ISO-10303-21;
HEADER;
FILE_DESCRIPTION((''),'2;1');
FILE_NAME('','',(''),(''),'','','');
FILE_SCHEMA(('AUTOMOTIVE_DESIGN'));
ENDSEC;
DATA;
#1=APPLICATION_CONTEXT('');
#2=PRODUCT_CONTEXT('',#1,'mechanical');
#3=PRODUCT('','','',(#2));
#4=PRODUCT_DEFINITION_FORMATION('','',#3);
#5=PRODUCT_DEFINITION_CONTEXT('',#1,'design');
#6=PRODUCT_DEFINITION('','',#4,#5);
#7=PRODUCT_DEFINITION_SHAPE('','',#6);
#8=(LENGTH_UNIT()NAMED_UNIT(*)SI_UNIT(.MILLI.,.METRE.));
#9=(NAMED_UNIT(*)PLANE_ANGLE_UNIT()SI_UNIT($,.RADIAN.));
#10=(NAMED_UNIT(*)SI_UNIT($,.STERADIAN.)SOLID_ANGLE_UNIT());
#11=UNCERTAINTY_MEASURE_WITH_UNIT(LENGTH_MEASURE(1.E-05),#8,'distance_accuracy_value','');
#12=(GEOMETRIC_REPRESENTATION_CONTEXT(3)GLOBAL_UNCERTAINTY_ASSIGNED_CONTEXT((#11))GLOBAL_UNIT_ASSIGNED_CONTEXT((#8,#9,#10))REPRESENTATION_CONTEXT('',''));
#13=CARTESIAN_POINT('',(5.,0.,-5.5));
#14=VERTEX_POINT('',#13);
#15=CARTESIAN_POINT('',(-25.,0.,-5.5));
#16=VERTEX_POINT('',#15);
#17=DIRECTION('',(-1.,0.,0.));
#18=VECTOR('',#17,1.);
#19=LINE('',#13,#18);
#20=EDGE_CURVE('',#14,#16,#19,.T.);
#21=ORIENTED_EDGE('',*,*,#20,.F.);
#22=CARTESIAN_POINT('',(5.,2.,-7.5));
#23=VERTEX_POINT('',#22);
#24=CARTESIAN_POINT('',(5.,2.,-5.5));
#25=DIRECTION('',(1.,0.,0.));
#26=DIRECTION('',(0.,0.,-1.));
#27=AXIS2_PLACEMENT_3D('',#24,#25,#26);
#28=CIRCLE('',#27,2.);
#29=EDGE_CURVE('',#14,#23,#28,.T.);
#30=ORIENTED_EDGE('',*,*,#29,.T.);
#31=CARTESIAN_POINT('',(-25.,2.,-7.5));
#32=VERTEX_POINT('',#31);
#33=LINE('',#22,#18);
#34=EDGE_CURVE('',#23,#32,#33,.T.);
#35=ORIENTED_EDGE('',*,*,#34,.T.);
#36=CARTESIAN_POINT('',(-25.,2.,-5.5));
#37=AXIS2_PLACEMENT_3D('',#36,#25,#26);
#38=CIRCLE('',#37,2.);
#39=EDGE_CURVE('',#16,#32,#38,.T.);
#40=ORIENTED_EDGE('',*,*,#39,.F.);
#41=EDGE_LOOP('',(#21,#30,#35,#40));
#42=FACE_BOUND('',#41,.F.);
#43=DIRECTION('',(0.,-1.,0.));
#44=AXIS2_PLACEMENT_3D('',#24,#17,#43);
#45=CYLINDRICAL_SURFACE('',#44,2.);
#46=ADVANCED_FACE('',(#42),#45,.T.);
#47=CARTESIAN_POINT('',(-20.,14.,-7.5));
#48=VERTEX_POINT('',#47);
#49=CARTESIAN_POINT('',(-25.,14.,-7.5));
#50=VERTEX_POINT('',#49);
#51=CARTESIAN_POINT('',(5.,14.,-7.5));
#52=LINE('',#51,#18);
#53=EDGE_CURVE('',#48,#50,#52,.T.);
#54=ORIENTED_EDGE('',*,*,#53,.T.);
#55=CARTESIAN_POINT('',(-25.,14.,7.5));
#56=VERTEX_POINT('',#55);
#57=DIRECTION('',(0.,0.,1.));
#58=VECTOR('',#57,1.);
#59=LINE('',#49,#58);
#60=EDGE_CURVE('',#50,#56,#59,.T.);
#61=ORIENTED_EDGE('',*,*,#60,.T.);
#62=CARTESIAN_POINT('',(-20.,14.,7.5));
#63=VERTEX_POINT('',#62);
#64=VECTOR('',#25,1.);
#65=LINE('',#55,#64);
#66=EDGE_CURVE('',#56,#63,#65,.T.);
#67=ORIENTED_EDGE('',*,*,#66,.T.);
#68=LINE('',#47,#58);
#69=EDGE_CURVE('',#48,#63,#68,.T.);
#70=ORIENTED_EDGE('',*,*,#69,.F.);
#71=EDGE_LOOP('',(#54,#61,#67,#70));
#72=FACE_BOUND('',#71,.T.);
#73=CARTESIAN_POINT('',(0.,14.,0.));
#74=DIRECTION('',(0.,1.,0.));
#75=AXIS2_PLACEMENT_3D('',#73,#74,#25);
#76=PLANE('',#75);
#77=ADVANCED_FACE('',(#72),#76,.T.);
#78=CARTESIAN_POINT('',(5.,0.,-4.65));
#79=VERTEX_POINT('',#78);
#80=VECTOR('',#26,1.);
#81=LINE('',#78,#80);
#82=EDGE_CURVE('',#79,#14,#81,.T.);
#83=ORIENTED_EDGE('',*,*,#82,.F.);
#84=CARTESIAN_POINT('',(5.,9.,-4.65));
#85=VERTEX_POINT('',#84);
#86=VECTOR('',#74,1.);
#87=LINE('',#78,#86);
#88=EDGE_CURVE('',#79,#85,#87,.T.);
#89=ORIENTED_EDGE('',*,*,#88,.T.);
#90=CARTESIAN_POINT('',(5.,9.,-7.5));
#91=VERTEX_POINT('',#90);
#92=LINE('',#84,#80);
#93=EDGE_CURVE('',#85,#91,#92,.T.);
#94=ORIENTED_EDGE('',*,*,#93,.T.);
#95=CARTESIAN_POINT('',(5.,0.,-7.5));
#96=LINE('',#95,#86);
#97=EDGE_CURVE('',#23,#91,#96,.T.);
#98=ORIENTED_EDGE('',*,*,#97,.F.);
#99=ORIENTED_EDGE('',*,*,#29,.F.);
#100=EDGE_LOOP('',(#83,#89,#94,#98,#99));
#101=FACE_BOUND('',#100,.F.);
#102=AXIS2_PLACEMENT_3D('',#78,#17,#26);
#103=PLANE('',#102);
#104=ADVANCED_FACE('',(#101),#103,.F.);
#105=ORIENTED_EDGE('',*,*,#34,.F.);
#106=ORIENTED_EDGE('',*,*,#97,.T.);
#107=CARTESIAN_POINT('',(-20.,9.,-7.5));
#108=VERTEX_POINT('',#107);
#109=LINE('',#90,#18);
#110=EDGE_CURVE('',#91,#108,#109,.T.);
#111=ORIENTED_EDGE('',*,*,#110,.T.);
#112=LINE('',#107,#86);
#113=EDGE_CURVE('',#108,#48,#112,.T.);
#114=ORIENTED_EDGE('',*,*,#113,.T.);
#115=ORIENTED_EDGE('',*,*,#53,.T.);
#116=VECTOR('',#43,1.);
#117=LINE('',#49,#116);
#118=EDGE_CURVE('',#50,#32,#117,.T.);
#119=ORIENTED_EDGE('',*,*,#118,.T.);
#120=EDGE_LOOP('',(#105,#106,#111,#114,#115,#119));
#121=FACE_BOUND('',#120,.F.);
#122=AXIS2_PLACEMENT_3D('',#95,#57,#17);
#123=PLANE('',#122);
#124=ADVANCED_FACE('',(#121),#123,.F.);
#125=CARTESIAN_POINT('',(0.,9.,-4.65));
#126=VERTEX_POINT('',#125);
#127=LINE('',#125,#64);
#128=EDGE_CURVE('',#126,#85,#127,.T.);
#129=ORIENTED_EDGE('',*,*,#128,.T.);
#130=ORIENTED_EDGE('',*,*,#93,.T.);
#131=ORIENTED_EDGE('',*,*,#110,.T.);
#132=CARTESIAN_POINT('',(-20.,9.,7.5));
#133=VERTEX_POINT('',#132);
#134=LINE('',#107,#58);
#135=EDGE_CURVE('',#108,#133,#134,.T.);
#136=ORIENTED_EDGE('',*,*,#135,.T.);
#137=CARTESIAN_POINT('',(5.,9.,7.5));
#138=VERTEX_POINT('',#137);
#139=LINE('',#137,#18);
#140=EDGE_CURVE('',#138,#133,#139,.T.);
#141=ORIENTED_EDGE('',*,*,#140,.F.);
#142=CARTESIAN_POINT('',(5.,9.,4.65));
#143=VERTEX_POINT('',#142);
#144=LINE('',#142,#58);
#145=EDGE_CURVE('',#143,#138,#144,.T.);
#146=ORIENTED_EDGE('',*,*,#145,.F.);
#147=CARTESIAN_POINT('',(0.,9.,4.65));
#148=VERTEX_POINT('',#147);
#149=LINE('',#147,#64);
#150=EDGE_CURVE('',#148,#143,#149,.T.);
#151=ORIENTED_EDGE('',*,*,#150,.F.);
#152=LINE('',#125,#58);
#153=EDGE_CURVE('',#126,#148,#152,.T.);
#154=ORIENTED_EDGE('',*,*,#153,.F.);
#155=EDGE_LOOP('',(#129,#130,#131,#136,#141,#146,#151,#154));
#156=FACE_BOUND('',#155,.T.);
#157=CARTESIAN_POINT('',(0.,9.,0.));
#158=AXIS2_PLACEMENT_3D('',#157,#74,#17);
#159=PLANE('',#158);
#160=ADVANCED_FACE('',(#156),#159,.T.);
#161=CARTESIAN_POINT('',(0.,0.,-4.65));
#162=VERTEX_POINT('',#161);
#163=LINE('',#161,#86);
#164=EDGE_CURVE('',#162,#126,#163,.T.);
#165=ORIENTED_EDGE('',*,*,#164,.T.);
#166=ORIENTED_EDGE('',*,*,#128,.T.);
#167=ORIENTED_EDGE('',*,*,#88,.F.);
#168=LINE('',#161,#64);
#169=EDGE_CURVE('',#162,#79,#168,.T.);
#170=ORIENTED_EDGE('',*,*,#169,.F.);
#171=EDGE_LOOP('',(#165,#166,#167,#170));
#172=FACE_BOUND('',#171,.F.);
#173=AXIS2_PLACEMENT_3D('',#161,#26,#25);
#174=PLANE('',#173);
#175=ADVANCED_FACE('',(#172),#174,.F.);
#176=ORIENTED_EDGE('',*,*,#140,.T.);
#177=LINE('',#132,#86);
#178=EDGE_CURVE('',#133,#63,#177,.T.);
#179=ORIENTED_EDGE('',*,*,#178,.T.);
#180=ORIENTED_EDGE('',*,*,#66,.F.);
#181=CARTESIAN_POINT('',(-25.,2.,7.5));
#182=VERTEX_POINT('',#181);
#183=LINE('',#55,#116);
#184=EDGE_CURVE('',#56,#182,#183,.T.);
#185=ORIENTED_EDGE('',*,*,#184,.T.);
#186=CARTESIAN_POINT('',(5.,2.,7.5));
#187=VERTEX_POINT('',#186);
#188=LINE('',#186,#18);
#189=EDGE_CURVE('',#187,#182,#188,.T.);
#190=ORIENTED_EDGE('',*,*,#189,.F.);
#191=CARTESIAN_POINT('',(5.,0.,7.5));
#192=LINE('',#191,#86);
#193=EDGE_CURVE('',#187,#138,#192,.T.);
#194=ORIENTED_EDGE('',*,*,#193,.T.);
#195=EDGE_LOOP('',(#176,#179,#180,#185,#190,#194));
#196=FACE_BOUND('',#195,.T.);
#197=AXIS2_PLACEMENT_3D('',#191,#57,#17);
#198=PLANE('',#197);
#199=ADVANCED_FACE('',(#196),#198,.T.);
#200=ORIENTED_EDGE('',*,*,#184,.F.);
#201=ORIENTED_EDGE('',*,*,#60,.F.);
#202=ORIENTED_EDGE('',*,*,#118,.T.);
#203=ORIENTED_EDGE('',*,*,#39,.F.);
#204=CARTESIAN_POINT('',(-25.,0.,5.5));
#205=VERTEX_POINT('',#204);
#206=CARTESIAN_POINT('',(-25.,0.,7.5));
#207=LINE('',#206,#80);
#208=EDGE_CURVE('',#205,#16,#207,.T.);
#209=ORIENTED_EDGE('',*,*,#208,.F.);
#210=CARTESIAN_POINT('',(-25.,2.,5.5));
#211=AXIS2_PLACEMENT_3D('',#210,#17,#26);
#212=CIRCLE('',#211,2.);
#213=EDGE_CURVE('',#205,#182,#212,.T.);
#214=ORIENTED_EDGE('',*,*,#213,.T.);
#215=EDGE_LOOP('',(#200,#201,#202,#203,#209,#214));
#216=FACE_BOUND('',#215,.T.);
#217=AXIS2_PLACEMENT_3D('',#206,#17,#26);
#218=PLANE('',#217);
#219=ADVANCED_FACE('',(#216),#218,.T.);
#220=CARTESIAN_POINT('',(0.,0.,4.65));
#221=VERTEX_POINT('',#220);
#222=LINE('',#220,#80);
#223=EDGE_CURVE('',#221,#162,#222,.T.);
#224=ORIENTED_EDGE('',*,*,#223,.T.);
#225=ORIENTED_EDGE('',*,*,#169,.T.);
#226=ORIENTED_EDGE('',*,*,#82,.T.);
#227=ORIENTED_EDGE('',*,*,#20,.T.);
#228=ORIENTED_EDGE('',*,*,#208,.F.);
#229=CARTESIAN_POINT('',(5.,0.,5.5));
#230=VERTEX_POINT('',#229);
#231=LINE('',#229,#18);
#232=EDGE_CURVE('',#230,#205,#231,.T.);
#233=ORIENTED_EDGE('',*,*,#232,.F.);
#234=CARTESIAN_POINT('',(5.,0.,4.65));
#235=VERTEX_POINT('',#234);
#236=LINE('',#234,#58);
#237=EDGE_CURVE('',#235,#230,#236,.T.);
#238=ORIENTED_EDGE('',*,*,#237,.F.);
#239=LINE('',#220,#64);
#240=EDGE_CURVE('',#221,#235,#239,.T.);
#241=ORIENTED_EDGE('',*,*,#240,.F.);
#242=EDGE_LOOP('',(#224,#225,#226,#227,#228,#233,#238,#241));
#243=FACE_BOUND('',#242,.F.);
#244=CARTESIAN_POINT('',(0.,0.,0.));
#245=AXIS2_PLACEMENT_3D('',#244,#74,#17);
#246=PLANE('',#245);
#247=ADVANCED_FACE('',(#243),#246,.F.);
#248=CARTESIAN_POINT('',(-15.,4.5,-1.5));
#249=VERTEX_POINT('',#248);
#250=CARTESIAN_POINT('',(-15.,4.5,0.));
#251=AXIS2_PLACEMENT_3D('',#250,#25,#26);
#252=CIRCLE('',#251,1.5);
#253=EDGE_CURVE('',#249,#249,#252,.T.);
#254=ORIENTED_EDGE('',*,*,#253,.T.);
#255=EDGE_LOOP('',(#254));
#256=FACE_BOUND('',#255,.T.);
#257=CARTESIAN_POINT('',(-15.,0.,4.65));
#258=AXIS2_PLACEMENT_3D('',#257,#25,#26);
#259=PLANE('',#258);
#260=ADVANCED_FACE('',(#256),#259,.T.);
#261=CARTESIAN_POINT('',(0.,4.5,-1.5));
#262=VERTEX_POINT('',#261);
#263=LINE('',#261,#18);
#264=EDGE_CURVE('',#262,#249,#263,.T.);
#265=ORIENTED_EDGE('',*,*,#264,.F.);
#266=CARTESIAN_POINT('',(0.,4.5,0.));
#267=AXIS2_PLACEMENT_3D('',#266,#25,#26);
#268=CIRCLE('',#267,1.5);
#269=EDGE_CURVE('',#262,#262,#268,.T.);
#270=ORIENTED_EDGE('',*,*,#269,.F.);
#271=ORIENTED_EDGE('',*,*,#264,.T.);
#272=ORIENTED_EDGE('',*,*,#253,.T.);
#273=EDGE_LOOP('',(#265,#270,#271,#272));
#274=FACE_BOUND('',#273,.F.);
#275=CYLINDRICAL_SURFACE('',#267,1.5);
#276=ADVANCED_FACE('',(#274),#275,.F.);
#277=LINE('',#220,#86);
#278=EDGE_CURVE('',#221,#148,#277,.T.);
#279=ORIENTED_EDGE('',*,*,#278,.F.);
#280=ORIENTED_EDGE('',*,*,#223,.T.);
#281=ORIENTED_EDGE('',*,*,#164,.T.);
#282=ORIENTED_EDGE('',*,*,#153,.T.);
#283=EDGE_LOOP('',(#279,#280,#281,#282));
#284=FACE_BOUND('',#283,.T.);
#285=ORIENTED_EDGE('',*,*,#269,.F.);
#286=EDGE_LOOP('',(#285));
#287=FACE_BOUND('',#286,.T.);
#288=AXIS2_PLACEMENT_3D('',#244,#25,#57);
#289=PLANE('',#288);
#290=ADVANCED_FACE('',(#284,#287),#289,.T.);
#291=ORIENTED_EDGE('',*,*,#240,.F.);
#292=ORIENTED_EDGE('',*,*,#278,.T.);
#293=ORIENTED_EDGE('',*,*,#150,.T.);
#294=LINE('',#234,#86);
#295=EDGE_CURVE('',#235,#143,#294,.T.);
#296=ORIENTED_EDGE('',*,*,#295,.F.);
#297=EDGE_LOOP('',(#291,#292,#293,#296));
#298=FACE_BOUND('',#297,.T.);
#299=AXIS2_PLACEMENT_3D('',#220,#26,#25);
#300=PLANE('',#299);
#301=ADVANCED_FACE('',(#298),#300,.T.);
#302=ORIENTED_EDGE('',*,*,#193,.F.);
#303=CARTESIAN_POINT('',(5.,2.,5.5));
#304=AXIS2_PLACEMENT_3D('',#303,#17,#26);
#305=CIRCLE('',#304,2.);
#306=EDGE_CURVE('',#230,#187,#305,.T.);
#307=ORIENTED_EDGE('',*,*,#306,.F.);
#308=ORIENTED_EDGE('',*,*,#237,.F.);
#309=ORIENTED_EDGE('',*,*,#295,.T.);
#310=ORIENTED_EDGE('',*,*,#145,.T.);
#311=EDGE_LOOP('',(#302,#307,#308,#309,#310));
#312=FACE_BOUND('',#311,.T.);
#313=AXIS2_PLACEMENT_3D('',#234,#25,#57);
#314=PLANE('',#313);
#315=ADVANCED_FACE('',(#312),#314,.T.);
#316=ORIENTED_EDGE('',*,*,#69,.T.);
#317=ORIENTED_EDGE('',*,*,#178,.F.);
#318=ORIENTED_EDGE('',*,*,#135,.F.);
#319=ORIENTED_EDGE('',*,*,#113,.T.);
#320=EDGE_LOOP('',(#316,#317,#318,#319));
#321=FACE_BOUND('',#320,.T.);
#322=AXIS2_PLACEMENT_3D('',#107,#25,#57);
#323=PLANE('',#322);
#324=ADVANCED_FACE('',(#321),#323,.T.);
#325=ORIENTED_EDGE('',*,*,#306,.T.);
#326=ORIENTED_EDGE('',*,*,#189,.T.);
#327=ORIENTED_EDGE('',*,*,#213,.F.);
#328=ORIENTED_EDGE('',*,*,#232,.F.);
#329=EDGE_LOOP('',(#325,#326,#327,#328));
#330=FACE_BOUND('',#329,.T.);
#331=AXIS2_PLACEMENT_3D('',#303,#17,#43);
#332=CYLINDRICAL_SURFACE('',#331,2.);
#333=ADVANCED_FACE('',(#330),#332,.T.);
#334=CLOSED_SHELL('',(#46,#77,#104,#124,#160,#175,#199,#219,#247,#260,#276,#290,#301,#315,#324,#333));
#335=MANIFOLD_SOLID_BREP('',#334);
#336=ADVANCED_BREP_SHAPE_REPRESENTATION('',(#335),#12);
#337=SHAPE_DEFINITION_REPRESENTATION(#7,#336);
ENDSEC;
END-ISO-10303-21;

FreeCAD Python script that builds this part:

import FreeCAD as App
import Part
import Sketcher
Q = App.Units.Quantity


def edges_at(feature, points):
    """Names of the edges that pass closest to the given points."""
    edges = feature.Shape.Edges
    near = lambda p: min(range(len(edges)), key=lambda i: edges[i].distToShape(Part.Vertex(*p))[0])
    return sorted({f"Edge{near(p) + 1}" for p in points})

doc = App.newDocument("Part")
body = doc.addObject("PartDesign::Body", "Body")

# Sketch on XZ plane
sketch1 = body.newObject("Sketcher::SketchObject", "Sketch")
sketch1.AttachmentSupport = (doc.getObject("XZ_Plane"), [""])
sketch1.MapMode = "FlatFace"
sketch1.addGeometry([
    Part.LineSegment(App.Vector(0, 4.7, 0), App.Vector(0, -4.7, 0)),  # 0
    Part.LineSegment(App.Vector(0, -4.7, 0), App.Vector(5, -4.7, 0)),  # 1
    Part.LineSegment(App.Vector(5, -4.7, 0), App.Vector(5, -7.5, 0)),  # 2
    Part.LineSegment(App.Vector(5, -7.5, 0), App.Vector(-25, -7.5, 0)),  # 3
    Part.LineSegment(App.Vector(-25, -7.5, 0), App.Vector(-25, 7.5, 0)),  # 4
    Part.LineSegment(App.Vector(-25, 7.5, 0), App.Vector(5, 7.5, 0)),  # 5
    Part.LineSegment(App.Vector(5, 7.5, 0), App.Vector(5, 4.7, 0)),  # 6
    Part.LineSegment(App.Vector(5, 4.7, 0), App.Vector(0, 4.7, 0)),  # 7
], False)
sketch1.addConstraint([
    Sketcher.Constraint("Coincident", 0, 2, 1, 1),
    Sketcher.Constraint("Coincident", 1, 2, 2, 1),
    Sketcher.Constraint("Coincident", 2, 2, 3, 1),
    Sketcher.Constraint("Coincident", 3, 2, 4, 1),
    Sketcher.Constraint("Coincident", 4, 2, 5, 1),
    Sketcher.Constraint("Coincident", 5, 2, 6, 1),
    Sketcher.Constraint("Coincident", 6, 2, 7, 1),
    Sketcher.Constraint("Coincident", 7, 2, 0, 1),
    Sketcher.Constraint("Vertical", 0),
    Sketcher.Constraint("Horizontal", 1),
    Sketcher.Constraint("Vertical", 2),
    Sketcher.Constraint("Horizontal", 3),
    Sketcher.Constraint("Vertical", 4),
    Sketcher.Constraint("Horizontal", 5),
    Sketcher.Constraint("Vertical", 6),
    Sketcher.Constraint("Horizontal", 7),
    Sketcher.Constraint("Symmetric", 0, 2, 7, 2, -1, 1),
    Sketcher.Constraint("Symmetric", 2, 2, 5, 2, -1),
    Sketcher.Constraint("DistanceX", 1, 1, 1, 2, Q("5 mm")),
    Sketcher.Constraint("DistanceY", 4, 1, 4, 2, Q("15 mm")),
    Sketcher.Constraint("DistanceY", 0, 2, 0, 1, Q("9.3 mm")),
    Sketcher.Constraint("DistanceX", 3, 2, -1, 1, Q("25 mm")),
])
pad1 = body.newObject("PartDesign::Pad", "Pad")
pad1.Profile = sketch1
pad1.Length = 9
pad1.Reversed = True

# Sketch on XZ plane
sketch2 = body.newObject("Sketcher::SketchObject", "Sketch001")
sketch2.AttachmentSupport = (doc.getObject("XZ_Plane"), [""])
sketch2.MapMode = "FlatFace"
sketch2.AttachmentOffset = App.Placement(App.Vector(0, 0, -9), App.Rotation())
sketch2.addGeometry([
    Part.LineSegment(App.Vector(-20, 8, 0), App.Vector(-20, -8, 0)),
    Part.LineSegment(App.Vector(-20, -8, 0), App.Vector(-25, -8, 0)),
    Part.LineSegment(App.Vector(-25, -8, 0), App.Vector(-25, 8, 0)),
    Part.LineSegment(App.Vector(-25, 8, 0), App.Vector(-20, 8, 0)),
], False)
sketch2.addConstraint([
    Sketcher.Constraint("Coincident", 0, 2, 1, 1),
    Sketcher.Constraint("Coincident", 1, 2, 2, 1),
    Sketcher.Constraint("Coincident", 2, 2, 3, 1),
    Sketcher.Constraint("Coincident", 3, 2, 0, 1),
    Sketcher.Constraint("Vertical", 0),
    Sketcher.Constraint("Horizontal", 1),
    Sketcher.Constraint("Vertical", 2),
    Sketcher.Constraint("Horizontal", 3),
    Sketcher.Constraint("DistanceX", 1, 2, 1, 1, Q("5 mm")),
    Sketcher.Constraint("DistanceY", 0, 2, 0, 1, Q("15 mm")),
    Sketcher.Constraint("DistanceX", 0, 2, -1, 1, Q("20 mm")),
    Sketcher.Constraint("DistanceY", 0, 2, -1, 1, Q("7.5 mm")),
])
pad2 = body.newObject("PartDesign::Pad", "Pad001")
pad2.Profile = sketch2
pad2.Length = 5
pad2.Reversed = True

# Sketch on YZ plane
sketch3 = body.newObject("Sketcher::SketchObject", "Sketch002")
sketch3.AttachmentSupport = (doc.getObject("YZ_Plane"), [""])
sketch3.MapMode = "FlatFace"
sketch3.addGeometry(Part.Circle(App.Vector(4.5, 0, 0), App.Vector(0, 0, 1), 1.5), False)
sketch3.addConstraint([
    Sketcher.Constraint("PointOnObject", 0, 3, -1),
    Sketcher.Constraint("Diameter", 0, Q("3 mm")),
    Sketcher.Constraint("DistanceX", -1, 1, 0, 3, Q("4.5 mm")),
])
pocket1 = body.newObject("PartDesign::Pocket", "Pocket")
pocket1.Profile = sketch3
pocket1.Length = 15
doc.recompute()

fillet = body.newObject("PartDesign::Fillet", "Fillet")
fillet.Base = (pocket1, edges_at(pocket1, [(-10, 0, -7.5), (-10, 0, 7.5)]))
fillet.Radius = 2

doc.recompute()
